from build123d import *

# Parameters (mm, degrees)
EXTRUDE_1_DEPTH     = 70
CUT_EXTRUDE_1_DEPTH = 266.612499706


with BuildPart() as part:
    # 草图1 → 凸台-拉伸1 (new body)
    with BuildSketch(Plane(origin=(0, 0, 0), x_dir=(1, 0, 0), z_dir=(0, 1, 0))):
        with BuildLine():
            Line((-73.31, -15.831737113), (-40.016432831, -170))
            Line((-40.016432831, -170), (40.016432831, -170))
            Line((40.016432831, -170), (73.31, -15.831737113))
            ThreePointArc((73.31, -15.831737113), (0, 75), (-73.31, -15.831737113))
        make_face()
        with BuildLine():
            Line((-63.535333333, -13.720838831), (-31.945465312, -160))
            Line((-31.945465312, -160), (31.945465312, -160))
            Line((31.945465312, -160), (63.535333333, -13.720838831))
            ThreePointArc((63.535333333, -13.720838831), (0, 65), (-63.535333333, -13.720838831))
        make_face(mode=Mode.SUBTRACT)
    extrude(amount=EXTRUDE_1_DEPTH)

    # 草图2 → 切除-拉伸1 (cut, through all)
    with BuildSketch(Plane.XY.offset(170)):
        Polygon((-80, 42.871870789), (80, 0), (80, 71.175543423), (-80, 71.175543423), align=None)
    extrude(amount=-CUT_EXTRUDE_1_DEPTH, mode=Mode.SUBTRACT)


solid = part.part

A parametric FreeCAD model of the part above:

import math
import FreeCAD as App
import Part
import Sketcher
Q = App.Units.Quantity

doc = App.newDocument("Part")
params = doc.addObject("Spreadsheet::Sheet", "Params")
for row, (alias, value) in enumerate([
    ("sketch1_radius", "75 mm"),
    ("sketch1_radius2", "65 mm"),
    ("pad1_length", "70 mm"),
    ("sketch2_width", "160 mm"),
], start=1):
    params.set(f"A{row}", alias)
    params.set(f"B{row}", "=" + value)
    params.setAlias(f"B{row}", alias)

body = doc.addObject("PartDesign::Body", "Body")

# Sketch on XZ plane
sketch1 = doc.addObject("Sketcher::SketchObject", "Sketch")
body.addObject(sketch1)
sketch1.AttachmentSupport = (doc.XZ_Plane, [""])
sketch1.MapMode = "FlatFace"
sketch1.addGeometry(Part.LineSegment(App.Vector(-73, 16, 0), App.Vector(-40, 170, 0)), False)
sketch1.addGeometry(Part.LineSegment(App.Vector(-40, 170, 0), App.Vector(40, 170, 0)), False)
sketch1.addGeometry(Part.LineSegment(App.Vector(40, 170, 0), App.Vector(73, 16, 0)), False)
sketch1.addGeometry(Part.ArcOfCircle(Part.Circle(App.Vector(0, 0, 0), App.Vector(0, 0, 1), 75), math.radians(168), math.radians(372)), False)
sketch1.addGeometry(Part.LineSegment(App.Vector(-32, 160, 0), App.Vector(-64, 14, 0)), False)
sketch1.addGeometry(Part.ArcOfCircle(Part.Circle(App.Vector(0, 0, 0), App.Vector(0, 0, 1), 65), math.radians(168), math.radians(372)), False)
sketch1.addGeometry(Part.LineSegment(App.Vector(64, 14, 0), App.Vector(32, 160, 0)), False)
sketch1.addGeometry(Part.LineSegment(App.Vector(32, 160, 0), App.Vector(-32, 160, 0)), False)
sketch1.addConstraint(Sketcher.Constraint("Coincident", 0, 2, 1, 1))
sketch1.addConstraint(Sketcher.Constraint("Coincident", 1, 2, 2, 1))
sketch1.addConstraint(Sketcher.Constraint("Tangent", 2, 2, 3, 2))
sketch1.addConstraint(Sketcher.Constraint("Tangent", 3, 1, 0, 1))
sketch1.addConstraint(Sketcher.Constraint("Tangent", 4, 2, 5, 1))
sketch1.addConstraint(Sketcher.Constraint("Tangent", 5, 2, 6, 1))
sketch1.addConstraint(Sketcher.Constraint("Coincident", 6, 2, 7, 1))
sketch1.addConstraint(Sketcher.Constraint("Coincident", 7, 2, 4, 1))
sketch1.addConstraint(Sketcher.Constraint("Horizontal", 1))
sketch1.addConstraint(Sketcher.Constraint("Horizontal", 7))
sketch1.addConstraint(Sketcher.Constraint("Coincident", 3, 3, -1, 1))
sketch1.addConstraint(Sketcher.Constraint("Coincident", 5, 3, -1, 1))
sketch1.addConstraint(Sketcher.Constraint("Parallel", 0, 4))
sketch1.addConstraint(Sketcher.Constraint("Parallel", 2, 6))
sketch1.addConstraint(Sketcher.Constraint("Horizontal", 2, 2, 3, 1))
sketch1.addConstraint(Sketcher.Constraint("Radius", 3, Q("75 mm")))
sketch1.addConstraint(Sketcher.Constraint("Radius", 5, Q("65 mm")))
sketch1.addConstraint(Sketcher.Constraint("DistanceY", -1, 1, 0, 2, Q("170 mm")))
sketch1.addConstraint(Sketcher.Constraint("DistanceY", -1, 1, 6, 2, Q("160 mm")))
sketch1.addConstraint(Sketcher.Constraint("DistanceX", -1, 1, 2, 2, Q("73.31 mm")))
sketch1.setExpression("Constraints[15]", "Params.sketch1_radius")
sketch1.setExpression("Constraints[16]", "Params.sketch1_radius2")
pad1 = doc.addObject("PartDesign::Pad", "Pad")
body.addObject(pad1)
pad1.Profile = sketch1
pad1.setExpression("Length", "Params.pad1_length")
pad1.Reversed = True

# Sketch on XY plane
sketch2 = doc.addObject("Sketcher::SketchObject", "Sketch001")
body.addObject(sketch2)
sketch2.AttachmentSupport = (doc.XY_Plane, [""])
sketch2.MapMode = "FlatFace"
sketch2.AttachmentOffset = App.Placement(App.Vector(0, 0, 170), App.Rotation())
sketch2.addGeometry(Part.LineSegment(App.Vector(-80, 43, 0), App.Vector(80, 0, 0)), False)
sketch2.addGeometry(Part.LineSegment(App.Vector(80, 0, 0), App.Vector(80, 71, 0)), False)
sketch2.addGeometry(Part.LineSegment(App.Vector(80, 71, 0), App.Vector(-80, 71, 0)), False)
sketch2.addGeometry(Part.LineSegment(App.Vector(-80, 71, 0), App.Vector(-80, 43, 0)), False)
sketch2.addConstraint(Sketcher.Constraint("Coincident", 0, 2, 1, 1))
sketch2.addConstraint(Sketcher.Constraint("Coincident", 1, 2, 2, 1))
sketch2.addConstraint(Sketcher.Constraint("Coincident", 2, 2, 3, 1))
sketch2.addConstraint(Sketcher.Constraint("Coincident", 3, 2, 0, 1))
sketch2.addConstraint(Sketcher.Constraint("Vertical", 1))
sketch2.addConstraint(Sketcher.Constraint("Horizontal", 2))
sketch2.addConstraint(Sketcher.Constraint("Vertical", 3))
sketch2.addConstraint(Sketcher.Constraint("PointOnObject", 0, 2, -1))
sketch2.addConstraint(Sketcher.Constraint("DistanceX", 2, 2, 2, 1, Q("160 mm")))
sketch2.addConstraint(Sketcher.Constraint("Angle", 0, Q("-15 deg")))
sketch2.addConstraint(Sketcher.Constraint("DistanceX", -1, 1, 0, 2, Q("80 mm")))
sketch2.addConstraint(Sketcher.Constraint("DistanceY", 1, 1, 1, 2, Q("71.175543 mm")))
sketch2.setExpression("Constraints[8]", "Params.sketch2_width")
pocket1 = doc.addObject("PartDesign::Pocket", "Pocket")
body.addObject(pocket1)
pocket1.Profile = sketch2
pocket1.Type = "ThroughAll"

doc.recompute()
